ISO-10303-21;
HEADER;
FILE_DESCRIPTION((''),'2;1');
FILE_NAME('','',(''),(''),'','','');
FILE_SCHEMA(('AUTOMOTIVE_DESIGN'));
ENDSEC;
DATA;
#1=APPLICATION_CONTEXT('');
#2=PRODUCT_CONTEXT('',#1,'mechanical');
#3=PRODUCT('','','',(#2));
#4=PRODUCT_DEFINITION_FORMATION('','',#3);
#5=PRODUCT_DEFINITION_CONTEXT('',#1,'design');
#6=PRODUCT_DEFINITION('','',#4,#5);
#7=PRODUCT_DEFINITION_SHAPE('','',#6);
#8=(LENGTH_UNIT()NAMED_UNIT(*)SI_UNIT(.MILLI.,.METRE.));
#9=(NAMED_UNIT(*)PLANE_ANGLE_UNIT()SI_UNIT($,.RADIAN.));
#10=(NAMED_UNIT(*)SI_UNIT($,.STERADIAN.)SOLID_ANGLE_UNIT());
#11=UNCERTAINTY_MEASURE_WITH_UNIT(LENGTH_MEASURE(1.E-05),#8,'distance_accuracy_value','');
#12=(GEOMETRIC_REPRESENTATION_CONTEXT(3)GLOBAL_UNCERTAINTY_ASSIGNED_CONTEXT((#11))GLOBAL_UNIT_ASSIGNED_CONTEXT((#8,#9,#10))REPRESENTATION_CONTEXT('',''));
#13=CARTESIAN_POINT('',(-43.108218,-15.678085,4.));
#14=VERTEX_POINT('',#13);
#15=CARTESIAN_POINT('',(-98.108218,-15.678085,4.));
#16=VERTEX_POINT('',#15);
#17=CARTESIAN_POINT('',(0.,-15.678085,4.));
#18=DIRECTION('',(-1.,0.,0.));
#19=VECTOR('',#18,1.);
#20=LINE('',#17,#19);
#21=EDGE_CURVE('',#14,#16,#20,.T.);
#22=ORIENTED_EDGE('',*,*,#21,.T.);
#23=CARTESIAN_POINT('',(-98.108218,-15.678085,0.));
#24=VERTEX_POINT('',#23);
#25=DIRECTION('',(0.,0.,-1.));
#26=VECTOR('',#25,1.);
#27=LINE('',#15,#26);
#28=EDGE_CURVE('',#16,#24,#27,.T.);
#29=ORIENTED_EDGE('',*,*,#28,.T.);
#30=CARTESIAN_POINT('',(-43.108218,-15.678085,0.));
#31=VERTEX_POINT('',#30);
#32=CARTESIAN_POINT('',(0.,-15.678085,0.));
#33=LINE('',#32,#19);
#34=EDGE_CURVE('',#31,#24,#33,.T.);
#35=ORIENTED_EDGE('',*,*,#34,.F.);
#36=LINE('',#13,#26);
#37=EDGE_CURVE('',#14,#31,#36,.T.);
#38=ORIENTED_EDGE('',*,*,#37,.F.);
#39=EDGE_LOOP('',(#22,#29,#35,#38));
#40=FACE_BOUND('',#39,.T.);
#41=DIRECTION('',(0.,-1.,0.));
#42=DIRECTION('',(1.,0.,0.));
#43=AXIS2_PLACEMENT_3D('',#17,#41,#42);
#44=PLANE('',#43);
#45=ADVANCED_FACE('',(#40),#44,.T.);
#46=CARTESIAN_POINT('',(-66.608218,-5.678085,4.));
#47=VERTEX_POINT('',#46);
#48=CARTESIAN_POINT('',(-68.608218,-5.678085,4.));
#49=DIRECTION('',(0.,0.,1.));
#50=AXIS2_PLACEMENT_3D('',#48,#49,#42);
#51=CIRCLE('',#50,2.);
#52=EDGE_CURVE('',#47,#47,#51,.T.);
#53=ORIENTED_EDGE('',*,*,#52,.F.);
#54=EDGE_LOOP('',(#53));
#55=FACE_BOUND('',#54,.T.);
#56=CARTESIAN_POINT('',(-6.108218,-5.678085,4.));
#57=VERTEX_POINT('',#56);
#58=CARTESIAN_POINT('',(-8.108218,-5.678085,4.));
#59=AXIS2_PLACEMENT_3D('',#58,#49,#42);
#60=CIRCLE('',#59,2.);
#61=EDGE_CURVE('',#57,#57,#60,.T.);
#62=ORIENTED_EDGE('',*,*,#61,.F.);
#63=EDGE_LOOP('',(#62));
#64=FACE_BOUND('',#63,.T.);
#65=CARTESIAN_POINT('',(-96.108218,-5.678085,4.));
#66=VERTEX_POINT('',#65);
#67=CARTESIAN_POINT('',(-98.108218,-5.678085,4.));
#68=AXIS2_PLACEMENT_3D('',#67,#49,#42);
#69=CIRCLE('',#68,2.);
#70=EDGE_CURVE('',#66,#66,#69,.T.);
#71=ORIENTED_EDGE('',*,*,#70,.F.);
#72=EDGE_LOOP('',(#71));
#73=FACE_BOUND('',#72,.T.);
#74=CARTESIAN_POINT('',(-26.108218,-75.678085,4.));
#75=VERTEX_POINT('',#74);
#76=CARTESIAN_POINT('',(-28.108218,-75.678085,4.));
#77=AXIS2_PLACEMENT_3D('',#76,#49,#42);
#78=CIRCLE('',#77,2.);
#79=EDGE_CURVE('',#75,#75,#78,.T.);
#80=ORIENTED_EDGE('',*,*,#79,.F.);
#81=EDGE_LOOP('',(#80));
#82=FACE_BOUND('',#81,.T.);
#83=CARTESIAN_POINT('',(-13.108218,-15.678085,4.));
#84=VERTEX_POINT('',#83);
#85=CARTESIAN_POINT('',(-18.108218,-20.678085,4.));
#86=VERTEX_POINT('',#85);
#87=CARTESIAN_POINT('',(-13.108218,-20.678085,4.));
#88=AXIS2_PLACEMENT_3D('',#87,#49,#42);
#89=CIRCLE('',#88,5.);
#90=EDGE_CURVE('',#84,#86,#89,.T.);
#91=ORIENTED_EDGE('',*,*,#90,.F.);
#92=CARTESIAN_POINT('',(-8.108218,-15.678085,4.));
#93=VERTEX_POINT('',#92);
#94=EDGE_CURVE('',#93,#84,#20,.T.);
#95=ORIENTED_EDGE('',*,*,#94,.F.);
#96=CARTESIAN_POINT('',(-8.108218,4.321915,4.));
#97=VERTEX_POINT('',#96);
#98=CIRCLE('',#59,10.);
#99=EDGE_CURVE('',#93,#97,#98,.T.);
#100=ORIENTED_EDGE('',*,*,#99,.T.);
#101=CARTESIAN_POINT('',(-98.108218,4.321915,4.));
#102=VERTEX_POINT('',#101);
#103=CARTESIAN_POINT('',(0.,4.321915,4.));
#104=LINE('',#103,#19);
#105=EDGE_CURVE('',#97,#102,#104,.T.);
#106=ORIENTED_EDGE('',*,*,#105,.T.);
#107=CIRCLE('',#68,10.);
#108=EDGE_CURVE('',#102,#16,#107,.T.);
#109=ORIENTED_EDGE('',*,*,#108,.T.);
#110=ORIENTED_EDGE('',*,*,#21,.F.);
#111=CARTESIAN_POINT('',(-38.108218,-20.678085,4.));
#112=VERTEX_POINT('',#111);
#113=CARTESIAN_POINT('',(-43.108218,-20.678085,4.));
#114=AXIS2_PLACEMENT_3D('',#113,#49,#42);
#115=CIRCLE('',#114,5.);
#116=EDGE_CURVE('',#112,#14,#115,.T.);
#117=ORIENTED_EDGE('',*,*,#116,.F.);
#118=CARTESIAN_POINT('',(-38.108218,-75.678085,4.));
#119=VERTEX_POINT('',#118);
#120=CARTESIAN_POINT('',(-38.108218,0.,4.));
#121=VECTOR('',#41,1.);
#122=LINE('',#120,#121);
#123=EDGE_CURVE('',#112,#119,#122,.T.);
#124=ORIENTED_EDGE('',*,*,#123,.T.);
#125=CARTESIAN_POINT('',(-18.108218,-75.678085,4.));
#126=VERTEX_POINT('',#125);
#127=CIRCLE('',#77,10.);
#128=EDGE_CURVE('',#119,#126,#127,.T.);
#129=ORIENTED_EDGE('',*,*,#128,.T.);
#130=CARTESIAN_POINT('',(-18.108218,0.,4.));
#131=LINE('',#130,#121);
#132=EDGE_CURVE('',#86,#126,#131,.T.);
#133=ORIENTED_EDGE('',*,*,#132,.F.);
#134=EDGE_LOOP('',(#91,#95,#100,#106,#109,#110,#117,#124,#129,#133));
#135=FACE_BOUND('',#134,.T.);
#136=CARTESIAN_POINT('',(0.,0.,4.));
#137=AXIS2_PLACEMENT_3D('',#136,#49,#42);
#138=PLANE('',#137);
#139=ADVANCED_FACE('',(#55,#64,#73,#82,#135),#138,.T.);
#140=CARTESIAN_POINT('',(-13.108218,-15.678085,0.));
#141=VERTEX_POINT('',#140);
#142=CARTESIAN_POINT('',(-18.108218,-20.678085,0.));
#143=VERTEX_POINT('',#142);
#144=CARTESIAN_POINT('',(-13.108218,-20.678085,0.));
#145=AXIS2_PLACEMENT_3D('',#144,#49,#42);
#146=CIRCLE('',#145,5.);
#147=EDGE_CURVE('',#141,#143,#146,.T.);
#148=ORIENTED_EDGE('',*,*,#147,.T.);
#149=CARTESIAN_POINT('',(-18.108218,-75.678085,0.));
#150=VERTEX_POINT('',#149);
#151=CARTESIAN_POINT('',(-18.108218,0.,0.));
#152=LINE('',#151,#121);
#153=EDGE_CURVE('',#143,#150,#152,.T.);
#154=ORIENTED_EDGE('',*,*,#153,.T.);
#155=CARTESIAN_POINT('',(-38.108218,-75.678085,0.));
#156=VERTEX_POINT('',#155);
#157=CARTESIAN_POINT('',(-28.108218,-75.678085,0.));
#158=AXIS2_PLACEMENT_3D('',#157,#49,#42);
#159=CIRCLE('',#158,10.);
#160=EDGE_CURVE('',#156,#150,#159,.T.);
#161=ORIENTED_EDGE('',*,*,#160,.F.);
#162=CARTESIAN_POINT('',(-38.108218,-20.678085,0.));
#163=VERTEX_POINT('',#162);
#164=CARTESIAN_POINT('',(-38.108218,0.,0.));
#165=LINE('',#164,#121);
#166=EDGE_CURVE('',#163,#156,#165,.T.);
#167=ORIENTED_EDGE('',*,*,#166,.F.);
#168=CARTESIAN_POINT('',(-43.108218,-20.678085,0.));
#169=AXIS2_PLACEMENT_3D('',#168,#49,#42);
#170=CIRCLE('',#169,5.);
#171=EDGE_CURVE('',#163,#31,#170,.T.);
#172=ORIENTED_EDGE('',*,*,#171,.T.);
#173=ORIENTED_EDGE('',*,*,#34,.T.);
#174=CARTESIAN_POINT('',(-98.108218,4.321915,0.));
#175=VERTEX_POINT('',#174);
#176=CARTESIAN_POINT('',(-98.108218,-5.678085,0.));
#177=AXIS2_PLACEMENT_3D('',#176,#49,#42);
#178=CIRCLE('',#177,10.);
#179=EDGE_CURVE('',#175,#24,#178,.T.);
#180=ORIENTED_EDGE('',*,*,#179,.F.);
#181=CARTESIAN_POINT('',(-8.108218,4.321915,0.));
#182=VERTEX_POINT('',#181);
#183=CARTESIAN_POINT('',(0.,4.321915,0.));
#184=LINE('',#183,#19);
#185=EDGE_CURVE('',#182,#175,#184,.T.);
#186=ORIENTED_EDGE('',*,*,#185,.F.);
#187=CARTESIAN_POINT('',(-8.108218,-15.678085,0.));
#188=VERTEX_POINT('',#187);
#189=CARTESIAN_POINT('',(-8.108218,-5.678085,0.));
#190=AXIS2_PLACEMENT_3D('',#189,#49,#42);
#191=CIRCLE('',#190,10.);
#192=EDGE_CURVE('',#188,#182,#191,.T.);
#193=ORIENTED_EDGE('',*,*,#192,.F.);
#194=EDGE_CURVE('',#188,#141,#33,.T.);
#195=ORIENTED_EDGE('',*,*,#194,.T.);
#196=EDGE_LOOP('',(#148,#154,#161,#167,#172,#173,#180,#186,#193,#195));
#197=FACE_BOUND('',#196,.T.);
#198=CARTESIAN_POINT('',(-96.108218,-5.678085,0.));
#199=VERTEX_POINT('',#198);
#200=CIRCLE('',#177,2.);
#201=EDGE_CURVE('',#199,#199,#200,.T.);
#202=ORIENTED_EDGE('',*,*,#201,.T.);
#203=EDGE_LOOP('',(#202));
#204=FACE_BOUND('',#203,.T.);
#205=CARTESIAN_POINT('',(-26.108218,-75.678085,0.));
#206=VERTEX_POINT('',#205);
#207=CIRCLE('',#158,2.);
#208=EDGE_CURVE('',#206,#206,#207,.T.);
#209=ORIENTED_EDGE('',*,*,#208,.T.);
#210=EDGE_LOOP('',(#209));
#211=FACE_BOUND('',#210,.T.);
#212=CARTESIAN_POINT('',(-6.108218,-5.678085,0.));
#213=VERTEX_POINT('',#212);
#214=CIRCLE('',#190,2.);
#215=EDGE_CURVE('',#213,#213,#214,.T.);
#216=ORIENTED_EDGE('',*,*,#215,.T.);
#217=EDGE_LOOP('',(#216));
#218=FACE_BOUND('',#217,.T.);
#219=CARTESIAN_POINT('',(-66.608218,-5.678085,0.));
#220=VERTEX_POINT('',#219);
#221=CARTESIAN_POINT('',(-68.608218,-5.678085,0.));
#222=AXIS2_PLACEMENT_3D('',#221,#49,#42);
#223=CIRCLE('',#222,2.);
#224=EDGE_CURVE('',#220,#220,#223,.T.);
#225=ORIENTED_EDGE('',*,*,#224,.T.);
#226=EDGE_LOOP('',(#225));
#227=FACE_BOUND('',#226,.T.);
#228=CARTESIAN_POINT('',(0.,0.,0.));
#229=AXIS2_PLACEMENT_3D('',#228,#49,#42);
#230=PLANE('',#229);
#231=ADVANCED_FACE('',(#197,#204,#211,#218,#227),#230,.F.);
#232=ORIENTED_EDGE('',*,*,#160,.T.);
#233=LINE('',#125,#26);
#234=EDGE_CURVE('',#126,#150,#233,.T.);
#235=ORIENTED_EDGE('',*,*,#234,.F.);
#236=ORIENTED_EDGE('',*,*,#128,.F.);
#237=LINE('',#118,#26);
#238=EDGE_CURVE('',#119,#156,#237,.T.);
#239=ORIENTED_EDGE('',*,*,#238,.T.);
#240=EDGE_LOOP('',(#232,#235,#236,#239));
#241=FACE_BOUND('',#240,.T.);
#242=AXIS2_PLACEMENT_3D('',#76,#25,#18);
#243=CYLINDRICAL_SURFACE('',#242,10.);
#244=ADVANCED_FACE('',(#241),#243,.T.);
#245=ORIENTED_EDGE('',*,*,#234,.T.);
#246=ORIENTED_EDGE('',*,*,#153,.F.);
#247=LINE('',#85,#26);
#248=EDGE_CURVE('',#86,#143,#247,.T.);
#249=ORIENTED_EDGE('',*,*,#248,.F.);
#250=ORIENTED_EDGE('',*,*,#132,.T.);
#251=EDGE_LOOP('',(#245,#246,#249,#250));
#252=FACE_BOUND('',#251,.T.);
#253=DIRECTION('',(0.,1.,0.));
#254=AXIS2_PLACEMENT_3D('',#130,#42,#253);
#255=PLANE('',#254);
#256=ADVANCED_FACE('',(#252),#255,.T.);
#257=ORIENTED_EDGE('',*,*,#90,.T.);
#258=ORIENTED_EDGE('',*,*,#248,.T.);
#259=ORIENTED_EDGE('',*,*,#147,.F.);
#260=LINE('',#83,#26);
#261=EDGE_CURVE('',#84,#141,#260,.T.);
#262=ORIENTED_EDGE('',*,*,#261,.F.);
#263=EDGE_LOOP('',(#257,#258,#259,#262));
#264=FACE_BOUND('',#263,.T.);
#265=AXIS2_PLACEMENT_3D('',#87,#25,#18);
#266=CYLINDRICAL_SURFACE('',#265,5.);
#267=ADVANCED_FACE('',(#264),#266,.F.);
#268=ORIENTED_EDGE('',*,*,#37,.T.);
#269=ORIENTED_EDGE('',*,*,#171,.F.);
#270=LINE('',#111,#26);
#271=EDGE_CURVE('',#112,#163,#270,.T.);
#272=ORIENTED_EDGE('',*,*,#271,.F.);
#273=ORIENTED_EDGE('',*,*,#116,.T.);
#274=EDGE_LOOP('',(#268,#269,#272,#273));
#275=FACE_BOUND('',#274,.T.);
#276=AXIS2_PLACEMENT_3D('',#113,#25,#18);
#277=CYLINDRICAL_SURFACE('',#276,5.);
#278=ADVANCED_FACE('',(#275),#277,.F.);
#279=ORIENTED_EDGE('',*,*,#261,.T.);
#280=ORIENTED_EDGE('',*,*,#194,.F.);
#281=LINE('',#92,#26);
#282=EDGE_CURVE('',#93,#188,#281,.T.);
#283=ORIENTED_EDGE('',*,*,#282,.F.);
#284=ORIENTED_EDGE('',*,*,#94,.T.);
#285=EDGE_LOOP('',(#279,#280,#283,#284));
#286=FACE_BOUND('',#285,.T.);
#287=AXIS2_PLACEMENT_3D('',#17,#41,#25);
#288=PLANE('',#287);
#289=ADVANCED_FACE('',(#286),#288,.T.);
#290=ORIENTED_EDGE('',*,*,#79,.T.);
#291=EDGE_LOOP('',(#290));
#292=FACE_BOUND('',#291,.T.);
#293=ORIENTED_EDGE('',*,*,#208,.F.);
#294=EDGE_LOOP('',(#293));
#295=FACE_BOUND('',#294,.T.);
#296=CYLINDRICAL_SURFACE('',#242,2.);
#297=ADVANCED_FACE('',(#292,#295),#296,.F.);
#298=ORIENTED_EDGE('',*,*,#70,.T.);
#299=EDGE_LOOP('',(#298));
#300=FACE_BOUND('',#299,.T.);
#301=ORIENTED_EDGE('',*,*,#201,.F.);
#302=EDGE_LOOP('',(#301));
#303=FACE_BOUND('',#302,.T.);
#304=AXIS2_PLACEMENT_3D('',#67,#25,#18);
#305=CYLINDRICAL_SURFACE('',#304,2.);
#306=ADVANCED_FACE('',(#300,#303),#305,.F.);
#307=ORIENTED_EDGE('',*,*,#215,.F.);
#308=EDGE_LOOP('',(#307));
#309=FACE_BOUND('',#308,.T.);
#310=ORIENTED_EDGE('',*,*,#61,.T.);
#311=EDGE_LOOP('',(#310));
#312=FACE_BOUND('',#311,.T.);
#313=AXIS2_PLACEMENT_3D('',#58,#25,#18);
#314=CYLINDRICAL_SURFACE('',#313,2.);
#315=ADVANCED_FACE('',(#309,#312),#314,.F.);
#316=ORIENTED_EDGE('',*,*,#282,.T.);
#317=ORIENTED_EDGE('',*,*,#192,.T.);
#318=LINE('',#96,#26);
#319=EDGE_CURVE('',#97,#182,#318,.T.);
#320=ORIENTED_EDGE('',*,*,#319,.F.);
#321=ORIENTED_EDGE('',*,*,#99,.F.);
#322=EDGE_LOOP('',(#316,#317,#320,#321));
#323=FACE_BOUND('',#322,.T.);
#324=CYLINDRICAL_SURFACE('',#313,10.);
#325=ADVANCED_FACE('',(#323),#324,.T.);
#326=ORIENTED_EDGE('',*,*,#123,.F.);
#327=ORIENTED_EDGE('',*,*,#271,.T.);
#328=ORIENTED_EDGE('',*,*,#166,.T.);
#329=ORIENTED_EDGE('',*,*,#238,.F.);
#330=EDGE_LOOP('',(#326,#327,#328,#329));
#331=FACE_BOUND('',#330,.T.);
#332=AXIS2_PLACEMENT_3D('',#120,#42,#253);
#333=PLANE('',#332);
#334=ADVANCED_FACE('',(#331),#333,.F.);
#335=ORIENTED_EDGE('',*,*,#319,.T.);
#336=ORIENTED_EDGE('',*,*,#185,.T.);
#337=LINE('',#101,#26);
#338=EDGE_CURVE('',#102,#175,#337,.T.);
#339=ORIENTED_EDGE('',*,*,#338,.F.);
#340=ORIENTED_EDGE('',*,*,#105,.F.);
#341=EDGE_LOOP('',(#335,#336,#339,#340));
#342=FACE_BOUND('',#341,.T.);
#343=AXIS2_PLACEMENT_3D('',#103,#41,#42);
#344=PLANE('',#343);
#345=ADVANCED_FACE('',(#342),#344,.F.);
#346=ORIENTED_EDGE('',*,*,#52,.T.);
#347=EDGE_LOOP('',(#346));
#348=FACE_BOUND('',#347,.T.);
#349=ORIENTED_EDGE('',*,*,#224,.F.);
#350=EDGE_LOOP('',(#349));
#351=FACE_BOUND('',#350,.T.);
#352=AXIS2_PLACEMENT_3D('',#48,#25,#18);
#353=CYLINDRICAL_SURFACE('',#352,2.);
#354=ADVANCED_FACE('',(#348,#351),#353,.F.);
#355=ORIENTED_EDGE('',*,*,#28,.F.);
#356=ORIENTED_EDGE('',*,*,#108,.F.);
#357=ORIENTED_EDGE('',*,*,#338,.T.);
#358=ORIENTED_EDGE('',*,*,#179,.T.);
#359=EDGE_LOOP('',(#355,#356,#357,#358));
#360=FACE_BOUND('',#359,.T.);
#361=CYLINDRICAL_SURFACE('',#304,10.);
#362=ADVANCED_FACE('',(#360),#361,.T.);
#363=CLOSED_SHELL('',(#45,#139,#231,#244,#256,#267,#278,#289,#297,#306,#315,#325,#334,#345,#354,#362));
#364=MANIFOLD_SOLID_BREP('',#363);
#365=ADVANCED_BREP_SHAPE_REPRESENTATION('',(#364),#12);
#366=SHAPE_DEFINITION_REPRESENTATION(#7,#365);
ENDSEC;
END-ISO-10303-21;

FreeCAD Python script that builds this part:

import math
import FreeCAD as App
import Part
import Sketcher

V = App.Vector

doc = App.newDocument("Part")
params = doc.addObject("Spreadsheet::Sheet", "Params")
for row, (alias, value) in enumerate([
    ("sketch1_diameter", "4 mm"),
    ("sketch1_radius", "5 mm"),
    ("sketch1_radius2", "10 mm"),
    ("sketch1_width", "55 mm"),
    ("sketch1_width2", "5 mm"),
    ("pad1_length", "4 mm"),
], start=1):
    params.set(f"A{row}", alias)
    params.set(f"B{row}", "=" + value)
    params.setAlias(f"B{row}", alias)

body = doc.addObject("PartDesign::Body", "Body")

# Sketch on XY plane
sketch1 = body.newObject("Sketcher::SketchObject", "Sketch")
sketch1.AttachmentSupport = (doc.getObject("XY_Plane"), [""])
sketch1.MapMode = "FlatFace"
sketch1.addGeometry([
    Part.LineSegment(V(-98.1, -15.7, 0), V(-43.1, -15.7, 0)),  # 0
    Part.ArcOfCircle(Part.Circle(V(-43.1, -20.7, 0), V(0, 0, 1), 5), math.radians(0), math.radians(90)),  # 1
    Part.LineSegment(V(-38.1, -20.7, 0), V(-38.1, -75.7, 0)),  # 2
    Part.ArcOfCircle(Part.Circle(V(-28.1, -75.7, 0), V(0, 0, 1), 10), math.radians(180), math.radians(360)),  # 3
    Part.LineSegment(V(-18.1, -75.7, 0), V(-18.1, -20.7, 0)),  # 4
    Part.ArcOfCircle(Part.Circle(V(-13.1, -20.7, 0), V(0, 0, 1), 5), math.radians(90), math.radians(180)),  # 5
    Part.LineSegment(V(-13.1, -15.7, 0), V(-8.1, -15.7, 0)),  # 6
    Part.ArcOfCircle(Part.Circle(V(-8.1, -5.7, 0), V(0, 0, 1), 10), math.radians(-90), math.radians(52)),  # 7
    Part.ArcOfCircle(Part.Circle(V(-8.1, -5.7, 0), V(0, 0, 1), 10), math.radians(52), math.radians(90)),  # 8
    Part.LineSegment(V(-8.1, 4.3, 0), V(-98.1, 4.3, 0)),  # 9
    Part.ArcOfCircle(Part.Circle(V(-98.1, -5.7, 0), V(0, 0, 1), 10), math.radians(90), math.radians(270)),  # 10
    Part.Circle(V(-28.1, -75.7, 0), V(0, 0, 1), 2),  # 11
    Part.Circle(V(-98.1, -5.7, 0), V(0, 0, 1), 2),  # 12
    Part.Circle(V(-68.6, -5.7, 0), V(0, 0, 1), 2),  # 13
    Part.Circle(V(-8.1, -5.7, 0), V(0, 0, 1), 2),  # 14
], False)
sketch1.addConstraint([
    Sketcher.Constraint("Tangent", 0, 2, 1, 2),
    Sketcher.Constraint("Tangent", 1, 1, 2, 1),
    Sketcher.Constraint("Tangent", 2, 2, 3, 1),
    Sketcher.Constraint("Tangent", 3, 2, 4, 1),
    Sketcher.Constraint("Tangent", 4, 2, 5, 2),
    Sketcher.Constraint("Tangent", 5, 1, 6, 1),
    Sketcher.Constraint("Tangent", 6, 2, 7, 1),
    Sketcher.Constraint("Tangent", 7, 2, 8, 1),
    Sketcher.Constraint("Tangent", 8, 2, 9, 1),
    Sketcher.Constraint("Tangent", 9, 2, 10, 1),
    Sketcher.Constraint("Tangent", 10, 2, 0, 1),
    Sketcher.Constraint("Horizontal", 0),
    Sketcher.Constraint("Vertical", 2),
    Sketcher.Constraint("Vertical", 4),
    Sketcher.Constraint("Horizontal", 6),
    Sketcher.Constraint("Horizontal", 9),
    Sketcher.Constraint("Coincident", 11, 3, 3, 3),
    Sketcher.Constraint("Coincident", 12, 3, 10, 3),
    Sketcher.Constraint("Coincident", 14, 3, 7, 3),
    Sketcher.Constraint("Equal", 1, 5),
    Sketcher.Constraint("Equal", 3, 7),
    Sketcher.Constraint("Equal", 7, 8),
    Sketcher.Constraint("Equal", 8, 10),
    Sketcher.Constraint("Equal", 11, 12),
    Sketcher.Constraint("Equal", 12, 13),
    Sketcher.Constraint("Equal", 13, 14),
    Sketcher.Constraint("Horizontal", 12, 3, 13, 3),
    Sketcher.Constraint("Equal", 0, 2),
    Sketcher.Constraint("Diameter", 11, 4.0),
    Sketcher.Constraint("Radius", 1, 5.0),
    Sketcher.Constraint("Radius", 3, 10.0),
    Sketcher.Constraint("DistanceX", 0, 1, 0, 2, 55.0),
    Sketcher.Constraint("DistanceX", 6, 1, 6, 2, 5.0),
    Sketcher.Constraint("DistanceX", 10, 3, 13, 3, 29.5),
    Sketcher.Constraint("DistanceX", 7, 2, -1, 1, 1.97982),
    Sketcher.Constraint("DistanceY", 8, 3, 7, 2, 7.902072),
    Sketcher.Constraint("DistanceY", 1, 3, -1, 1, 20.678085),
])
sketch1.setExpression("Constraints[28]", "Params.sketch1_diameter")
sketch1.setExpression("Constraints[29]", "Params.sketch1_radius")
sketch1.setExpression("Constraints[30]", "Params.sketch1_radius2")
sketch1.setExpression("Constraints[31]", "Params.sketch1_width")
sketch1.setExpression("Constraints[32]", "Params.sketch1_width2")
pad1 = body.newObject("PartDesign::Pad", "Pad")
pad1.Profile = sketch1
pad1.setExpression("Length", "Params.pad1_length")

doc.recompute()
